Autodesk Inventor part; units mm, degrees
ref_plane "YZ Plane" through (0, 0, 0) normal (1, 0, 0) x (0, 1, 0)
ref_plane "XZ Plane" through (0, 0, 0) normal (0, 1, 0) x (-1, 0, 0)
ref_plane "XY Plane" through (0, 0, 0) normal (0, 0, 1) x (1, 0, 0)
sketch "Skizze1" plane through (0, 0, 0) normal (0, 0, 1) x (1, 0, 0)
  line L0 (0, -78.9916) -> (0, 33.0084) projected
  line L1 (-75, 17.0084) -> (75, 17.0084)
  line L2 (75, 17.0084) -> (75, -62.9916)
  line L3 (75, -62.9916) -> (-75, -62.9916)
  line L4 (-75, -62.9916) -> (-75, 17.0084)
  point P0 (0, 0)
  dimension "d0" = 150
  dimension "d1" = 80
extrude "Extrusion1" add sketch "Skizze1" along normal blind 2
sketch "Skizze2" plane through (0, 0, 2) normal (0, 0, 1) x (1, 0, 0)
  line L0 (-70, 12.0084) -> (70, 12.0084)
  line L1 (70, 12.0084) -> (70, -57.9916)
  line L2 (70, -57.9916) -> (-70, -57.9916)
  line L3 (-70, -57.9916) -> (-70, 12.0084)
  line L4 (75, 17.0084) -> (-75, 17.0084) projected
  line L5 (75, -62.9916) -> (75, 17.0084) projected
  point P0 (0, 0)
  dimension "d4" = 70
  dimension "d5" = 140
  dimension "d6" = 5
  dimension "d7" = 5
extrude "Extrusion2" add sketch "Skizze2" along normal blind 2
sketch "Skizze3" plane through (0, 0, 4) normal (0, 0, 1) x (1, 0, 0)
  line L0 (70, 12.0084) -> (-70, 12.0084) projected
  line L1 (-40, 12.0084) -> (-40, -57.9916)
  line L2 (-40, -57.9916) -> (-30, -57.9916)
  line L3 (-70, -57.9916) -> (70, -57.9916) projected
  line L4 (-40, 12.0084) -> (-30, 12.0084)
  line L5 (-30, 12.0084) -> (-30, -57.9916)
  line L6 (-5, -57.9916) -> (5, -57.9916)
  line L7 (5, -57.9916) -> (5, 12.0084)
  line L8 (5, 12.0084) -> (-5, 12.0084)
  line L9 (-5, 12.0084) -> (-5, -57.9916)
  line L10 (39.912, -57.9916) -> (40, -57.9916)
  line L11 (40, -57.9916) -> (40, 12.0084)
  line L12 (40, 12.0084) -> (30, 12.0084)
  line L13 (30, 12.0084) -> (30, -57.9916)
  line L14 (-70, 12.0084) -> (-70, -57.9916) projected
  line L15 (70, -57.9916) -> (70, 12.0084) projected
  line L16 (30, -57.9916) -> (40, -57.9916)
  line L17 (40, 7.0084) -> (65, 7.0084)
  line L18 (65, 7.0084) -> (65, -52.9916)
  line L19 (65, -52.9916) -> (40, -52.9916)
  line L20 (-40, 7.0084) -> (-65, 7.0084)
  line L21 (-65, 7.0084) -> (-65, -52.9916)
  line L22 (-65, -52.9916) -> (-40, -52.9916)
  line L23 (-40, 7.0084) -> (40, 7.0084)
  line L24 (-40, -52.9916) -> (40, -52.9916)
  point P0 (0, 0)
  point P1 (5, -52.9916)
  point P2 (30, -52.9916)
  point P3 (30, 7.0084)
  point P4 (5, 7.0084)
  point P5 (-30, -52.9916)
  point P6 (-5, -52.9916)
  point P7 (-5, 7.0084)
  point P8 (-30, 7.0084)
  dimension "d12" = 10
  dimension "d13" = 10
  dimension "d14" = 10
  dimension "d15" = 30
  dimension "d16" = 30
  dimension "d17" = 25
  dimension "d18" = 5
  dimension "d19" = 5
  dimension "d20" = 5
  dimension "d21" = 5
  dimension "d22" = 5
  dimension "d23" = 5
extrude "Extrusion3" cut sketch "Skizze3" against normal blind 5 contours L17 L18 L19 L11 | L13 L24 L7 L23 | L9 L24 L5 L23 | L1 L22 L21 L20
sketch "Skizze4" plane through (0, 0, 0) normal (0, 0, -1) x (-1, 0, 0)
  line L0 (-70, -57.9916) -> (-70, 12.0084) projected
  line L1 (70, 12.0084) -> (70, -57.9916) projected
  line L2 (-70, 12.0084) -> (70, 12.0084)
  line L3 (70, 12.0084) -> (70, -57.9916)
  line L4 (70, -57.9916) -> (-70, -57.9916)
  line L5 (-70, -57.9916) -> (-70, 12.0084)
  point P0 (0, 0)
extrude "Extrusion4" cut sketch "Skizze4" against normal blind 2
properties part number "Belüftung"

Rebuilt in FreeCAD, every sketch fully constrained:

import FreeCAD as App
import Part
import Sketcher

V = App.Vector


def add_polygon(sketch, points):
    """Adds a closed chain of lines whose ends are joined by coincident constraints."""
    first, n = sketch.GeometryCount, len(points)
    for a, b in zip(points, points[1:] + points[:1]):
        sketch.addGeometry(Part.LineSegment(App.Vector(*a, 0), App.Vector(*b, 0)), False)
    for i in range(n):
        sketch.addConstraint(Sketcher.Constraint("Coincident", first + i, 2, first + (i + 1) % n, 1))

doc = App.newDocument("Part")
body = doc.addObject("PartDesign::Body", "Body")
body.AllowCompound = True

sketch1 = body.newObject("Sketcher::SketchObject", "Sketch")
sketch1.AttachmentSupport = (doc.getObject("XY_Plane"), [""])
sketch1.MapMode = "FlatFace"
add_polygon(sketch1, [(-75, -62.9916), (75, -62.9916), (75, 17.0084), (-75, 17.0084)])
sketch1.addConstraint([
    Sketcher.Constraint("Horizontal", 0),
    Sketcher.Constraint("Vertical", 1),
    Sketcher.Constraint("Horizontal", 2),
    Sketcher.Constraint("Vertical", 3),
    Sketcher.Constraint("DistanceX", 0, 1, 0, 2, 150.0),
    Sketcher.Constraint("DistanceY", 1, 1, 1, 2, 80.0),
    Sketcher.Constraint("DistanceX", -1, 1, 0, 2, 75.0),
    Sketcher.Constraint("DistanceY", 0, 2, -1, 1, 62.9916),
])
pad1 = body.newObject("PartDesign::Pad", "Pad")
pad1.Profile = sketch1
pad1.Length = 2

sketch2 = body.newObject("Sketcher::SketchObject", "Sketch001")
sketch2.AttachmentSupport = (doc.getObject("XY_Plane"), [""])
sketch2.MapMode = "FlatFace"
sketch2.AttachmentOffset = App.Placement(V(0, 0, 2), App.Rotation())
add_polygon(sketch2, [(70, 12.0084), (-70, 12.0084), (-70, -57.9916), (70, -57.9916)])
sketch2.addConstraint([
    Sketcher.Constraint("Horizontal", 0),
    Sketcher.Constraint("Vertical", 1),
    Sketcher.Constraint("Horizontal", 2),
    Sketcher.Constraint("Vertical", 3),
    Sketcher.Constraint("DistanceX", 0, 2, 0, 1, 140.0),
    Sketcher.Constraint("DistanceY", 1, 2, 1, 1, 70.0),
    Sketcher.Constraint("DistanceX", 0, 2, -1, 1, 70.0),
    Sketcher.Constraint("DistanceY", -1, 1, 0, 2, 12.0084),
])
pad2 = body.newObject("PartDesign::Pad", "Pad001")
pad2.Profile = sketch2
pad2.Length = 2

sketch3 = body.newObject("Sketcher::SketchObject", "Sketch002")
sketch3.AttachmentSupport = (doc.getObject("XY_Plane"), [""])
sketch3.MapMode = "FlatFace"
sketch3.AttachmentOffset = App.Placement(V(0, 0, 4), App.Rotation())
add_polygon(sketch3, [(65, 7.0084), (40, 7.0084), (40, -52.9916), (65, -52.9916)])
add_polygon(sketch3, [(30, -52.9916), (30, 7.0084), (5, 7.0084), (5, -52.9916)])
add_polygon(sketch3, [(-5, -52.9916), (-5, 7.0084), (-30, 7.0084), (-30, -52.9916)])
add_polygon(sketch3, [(-40, -52.9916), (-40, 7.0084), (-65, 7.0084), (-65, -52.9916)])
sketch3.addConstraint([
    Sketcher.Constraint("Horizontal", 0),
    Sketcher.Constraint("Vertical", 1),
    Sketcher.Constraint("Horizontal", 2),
    Sketcher.Constraint("Vertical", 3),
    Sketcher.Constraint("Vertical", 4),
    Sketcher.Constraint("Horizontal", 5),
    Sketcher.Constraint("Vertical", 6),
    Sketcher.Constraint("Horizontal", 7),
    Sketcher.Constraint("Vertical", 8),
    Sketcher.Constraint("Horizontal", 9),
    Sketcher.Constraint("Vertical", 10),
    Sketcher.Constraint("Horizontal", 11),
    Sketcher.Constraint("Vertical", 12),
    Sketcher.Constraint("Horizontal", 13),
    Sketcher.Constraint("Vertical", 14),
    Sketcher.Constraint("Horizontal", 15),
    Sketcher.Constraint("Symmetric", 5, 2, 8, 2, -2),
    Sketcher.Constraint("Symmetric", 7, 2, 10, 2, -2),
    Sketcher.Constraint("Symmetric", 0, 2, 12, 2, -2),
    Sketcher.Constraint("Symmetric", 2, 2, 14, 2, -2),
    Sketcher.Constraint("Horizontal", 3, 2, 4, 2),
    Sketcher.Constraint("Horizontal", 2, 2, 6, 2),
    Sketcher.Constraint("Equal", 2, 5),
    Sketcher.Constraint("DistanceX", 0, 2, 0, 1, 25.0),
    Sketcher.Constraint("DistanceX", -1, 1, 4, 2, 30.0),
    Sketcher.Constraint("DistanceX", 4, 2, 0, 2, 10.0),
    Sketcher.Constraint("DistanceY", 1, 2, 1, 1, 60.0),
    Sketcher.Constraint("DistanceY", -1, 1, 0, 2, 7.0084),
])
pocket1 = body.newObject("PartDesign::Pocket", "Pocket")
pocket1.Profile = sketch3
pocket1.Length = 5

sketch4 = body.newObject("Sketcher::SketchObject", "Sketch003")
sketch4.AttachmentSupport = (doc.getObject("XY_Plane"), [""])
sketch4.MapMode = "FlatFace"
add_polygon(sketch4, [(70, 12.0084), (70, -57.9916), (-70, -57.9916), (-70, 12.0084)])
sketch4.addConstraint([
    Sketcher.Constraint("Vertical", 0),
    Sketcher.Constraint("Horizontal", 1),
    Sketcher.Constraint("Vertical", 2),
    Sketcher.Constraint("Horizontal", 3),
    Sketcher.Constraint("DistanceX", 1, 2, 1, 1, 140.0),
    Sketcher.Constraint("DistanceY", 0, 2, 0, 1, 70.0),
    Sketcher.Constraint("DistanceX", -1, 1, 0, 2, 70.0),
    Sketcher.Constraint("DistanceY", 0, 2, -1, 1, 57.9916),
])
pocket2 = body.newObject("PartDesign::Pocket", "Pocket001")
pocket2.Profile = sketch4
pocket2.Length = 2
pocket2.Reversed = True

doc.recompute()
